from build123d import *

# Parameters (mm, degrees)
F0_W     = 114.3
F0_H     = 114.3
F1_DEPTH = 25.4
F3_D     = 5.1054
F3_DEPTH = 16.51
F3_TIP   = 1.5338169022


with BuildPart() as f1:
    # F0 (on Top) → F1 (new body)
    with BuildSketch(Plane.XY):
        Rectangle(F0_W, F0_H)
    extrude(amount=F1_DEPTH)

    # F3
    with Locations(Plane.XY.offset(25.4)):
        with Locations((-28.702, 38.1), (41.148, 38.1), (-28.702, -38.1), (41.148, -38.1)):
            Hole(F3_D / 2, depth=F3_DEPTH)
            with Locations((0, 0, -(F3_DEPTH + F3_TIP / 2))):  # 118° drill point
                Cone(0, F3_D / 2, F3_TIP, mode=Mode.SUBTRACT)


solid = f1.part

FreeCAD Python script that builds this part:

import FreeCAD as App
import Part
import Sketcher
from FreeCAD import Vector
Q = App.Units.Quantity


def add_polygon(sketch, points):
    """Adds a closed chain of lines whose ends are joined by coincident constraints."""
    first, n = sketch.GeometryCount, len(points)
    for a, b in zip(points, points[1:] + points[:1]):
        sketch.addGeometry(Part.LineSegment(App.Vector(*a, 0), App.Vector(*b, 0)), False)
    for i in range(n):
        sketch.addConstraint(Sketcher.Constraint("Coincident", first + i, 2, first + (i + 1) % n, 1))

doc = App.newDocument("Part")
params = doc.addObject("Spreadsheet::Sheet", "Params")
for row, (alias, value) in enumerate([
    ("sketch1_width", "4.5 in"),
    ("pad1_length", "1 in"),
    ("sketch2_diameter", "0.201 in"),
    ("hole_diameter", "0.201 in"),
    ("hole_depth", "0.65 in"),
], start=1):
    params.set(f"A{row}", alias)
    params.set(f"B{row}", "=" + value)
    params.setAlias(f"B{row}", alias)

body = doc.addObject("PartDesign::Body", "Body")

sketch1 = body.newObject("Sketcher::SketchObject", "Sketch")
sketch1.AttachmentSupport = (doc.getObject("XY_Plane"), [""])
sketch1.MapMode = "FlatFace"
add_polygon(sketch1, [(-57.15, 57.15), (-57.15, -57.15), (57.15, -57.15), (57.15, 57.15)])
sketch1.addConstraint([
    Sketcher.Constraint("Vertical", 0),
    Sketcher.Constraint("Horizontal", 1),
    Sketcher.Constraint("Vertical", 2),
    Sketcher.Constraint("Horizontal", 3),
    Sketcher.Constraint("Symmetric", 0, 2, 2, 2, -1, 1),
    Sketcher.Constraint("Equal", 3, 0),
    Sketcher.Constraint("DistanceX", 1, 1, 1, 2, Q("4.5 in")),
])
sketch1.setExpression("Constraints[10]", "Params.sketch1_width")
pad1 = body.newObject("PartDesign::Pad", "Pad")
pad1.Profile = sketch1
pad1.setExpression("Length", "Params.pad1_length")

sketch2 = body.newObject("Sketcher::SketchObject", "Sketch001")
sketch2.AttachmentSupport = (doc.getObject("XY_Plane"), [""])
sketch2.MapMode = "FlatFace"
sketch2.AttachmentOffset = App.Placement(Vector(0, 0, 1 * 25.4), App.Rotation())
sketch2.addGeometry([
    Part.Circle(Vector(-28.702, 38.1, 0), Vector(0, 0, 1), 2.5527),
    Part.Circle(Vector(41.148, 38.1, 0), Vector(0, 0, 1), 2.5527),
    Part.Circle(Vector(-28.702, -38.1, 0), Vector(0, 0, 1), 2.5527),
    Part.Circle(Vector(41.148, -38.1, 0), Vector(0, 0, 1), 2.5527),
], False)
sketch2.addConstraint([
    Sketcher.Constraint("Equal", 0, 1),
    Sketcher.Constraint("Equal", 1, 2),
    Sketcher.Constraint("Equal", 2, 3),
    Sketcher.Constraint("Symmetric", 0, 3, 2, 3, -1),
    Sketcher.Constraint("Symmetric", 1, 3, 3, 3, -1),
    Sketcher.Constraint("Horizontal", 0, 3, 1, 3),
    Sketcher.Constraint("Diameter", 0, Q("0.201 in")),
    Sketcher.Constraint("DistanceY", 2, 3, 0, 3, Q("3 in")),
    Sketcher.Constraint("DistanceX", 0, 3, -1, 1, Q("1.13 in")),
    Sketcher.Constraint("DistanceX", -1, 1, 1, 3, Q("1.62 in")),
])
sketch2.setExpression("Constraints[6]", "Params.sketch2_diameter")
doc.recompute()
hole = body.newObject("PartDesign::Hole", "Hole")
hole.Profile = sketch2
hole.ThreadType = "None"
hole.setExpression("Diameter", "Params.hole_diameter")
hole.DepthType = "Dimension"
hole.setExpression("Depth", "Params.hole_depth")
hole.DrillPoint = "Angled"
hole.DrillPointAngle = 118

doc.recompute()
